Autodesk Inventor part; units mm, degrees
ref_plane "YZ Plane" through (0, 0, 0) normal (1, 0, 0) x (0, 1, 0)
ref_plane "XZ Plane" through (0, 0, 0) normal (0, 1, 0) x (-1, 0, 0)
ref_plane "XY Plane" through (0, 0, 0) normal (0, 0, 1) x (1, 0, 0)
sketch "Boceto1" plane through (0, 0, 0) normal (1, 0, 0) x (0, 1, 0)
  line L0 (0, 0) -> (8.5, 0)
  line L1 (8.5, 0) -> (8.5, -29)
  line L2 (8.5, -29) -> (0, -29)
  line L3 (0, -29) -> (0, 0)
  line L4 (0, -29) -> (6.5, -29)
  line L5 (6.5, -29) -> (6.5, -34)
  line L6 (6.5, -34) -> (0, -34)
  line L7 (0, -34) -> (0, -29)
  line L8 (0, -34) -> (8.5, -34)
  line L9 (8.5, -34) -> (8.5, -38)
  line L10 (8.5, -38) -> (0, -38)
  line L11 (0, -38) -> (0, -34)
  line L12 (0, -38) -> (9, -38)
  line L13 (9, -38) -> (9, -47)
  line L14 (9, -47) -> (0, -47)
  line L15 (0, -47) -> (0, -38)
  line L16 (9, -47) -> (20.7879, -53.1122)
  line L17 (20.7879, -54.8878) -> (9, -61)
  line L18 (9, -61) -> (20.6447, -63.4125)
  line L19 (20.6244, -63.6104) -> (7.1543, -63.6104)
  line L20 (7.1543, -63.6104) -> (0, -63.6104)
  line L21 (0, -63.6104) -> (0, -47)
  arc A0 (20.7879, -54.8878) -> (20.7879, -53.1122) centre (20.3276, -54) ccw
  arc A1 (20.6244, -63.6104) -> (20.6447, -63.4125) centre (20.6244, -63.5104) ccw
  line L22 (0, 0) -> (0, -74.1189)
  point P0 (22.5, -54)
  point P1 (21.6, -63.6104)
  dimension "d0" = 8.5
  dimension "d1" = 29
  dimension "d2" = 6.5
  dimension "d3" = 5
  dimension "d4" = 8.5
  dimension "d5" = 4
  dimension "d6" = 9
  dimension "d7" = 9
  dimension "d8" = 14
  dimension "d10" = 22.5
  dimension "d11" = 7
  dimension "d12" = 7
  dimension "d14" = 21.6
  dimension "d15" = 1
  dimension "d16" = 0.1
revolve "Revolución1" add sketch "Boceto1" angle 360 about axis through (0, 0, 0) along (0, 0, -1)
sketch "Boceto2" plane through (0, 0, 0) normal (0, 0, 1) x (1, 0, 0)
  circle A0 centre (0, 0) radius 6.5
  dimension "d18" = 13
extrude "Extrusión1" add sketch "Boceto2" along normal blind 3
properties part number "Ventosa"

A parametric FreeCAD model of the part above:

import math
import FreeCAD as App
import Part
import Sketcher
from FreeCAD import Vector
Q = App.Units.Quantity

doc = App.newDocument("Part")
body = doc.addObject("PartDesign::Body", "Body")

sketch1 = body.newObject("Sketcher::SketchObject", "Sketch")
sketch1.AttachmentSupport = (doc.getObject("YZ_Plane"), [""])
sketch1.MapMode = "FlatFace"
sketch1.addGeometry([
    Part.LineSegment(Vector(8.5, 0, 0), Vector(0, 0, 0)),
    Part.LineSegment(Vector(0, 0, 0), Vector(0, -63.61, 0)),
    Part.LineSegment(Vector(0, -63.61, 0), Vector(20.62, -63.61, 0)),
    Part.ArcOfCircle(Part.Circle(Vector(20.62, -63.51, 0), Vector(0, 0, 1), 0.1), math.radians(-90), math.radians(78)),
    Part.LineSegment(Vector(20.64, -63.41, 0), Vector(9, -61, 0)),
    Part.LineSegment(Vector(9, -61, 0), Vector(20.79, -54.89, 0)),
    Part.ArcOfCircle(Part.Circle(Vector(20.33, -54, 0), Vector(0, 0, 1), 1), math.radians(-63), math.radians(63)),
    Part.LineSegment(Vector(20.79, -53.11, 0), Vector(9, -47, 0)),
    Part.LineSegment(Vector(9, -47, 0), Vector(9, -38, 0)),
    Part.LineSegment(Vector(9, -38, 0), Vector(8.5, -38, 0)),
    Part.LineSegment(Vector(8.5, -38, 0), Vector(8.5, -34, 0)),
    Part.LineSegment(Vector(8.5, -34, 0), Vector(6.5, -34, 0)),
    Part.LineSegment(Vector(6.5, -34, 0), Vector(6.5, -29, 0)),
    Part.LineSegment(Vector(6.5, -29, 0), Vector(8.5, -29, 0)),
    Part.LineSegment(Vector(8.5, -29, 0), Vector(8.5, 0, 0)),
], False)
sketch1.addConstraint([
    Sketcher.Constraint("Coincident", 0, 2, 1, 1),
    Sketcher.Constraint("Coincident", 1, 2, 2, 1),
    Sketcher.Constraint("Tangent", 2, 2, 3, 1),
    Sketcher.Constraint("Tangent", 3, 2, 4, 1),
    Sketcher.Constraint("Coincident", 4, 2, 5, 1),
    Sketcher.Constraint("Tangent", 5, 2, 6, 1),
    Sketcher.Constraint("Tangent", 6, 2, 7, 1),
    Sketcher.Constraint("Coincident", 7, 2, 8, 1),
    Sketcher.Constraint("Coincident", 8, 2, 9, 1),
    Sketcher.Constraint("Coincident", 9, 2, 10, 1),
    Sketcher.Constraint("Coincident", 10, 2, 11, 1),
    Sketcher.Constraint("Coincident", 11, 2, 12, 1),
    Sketcher.Constraint("Coincident", 12, 2, 13, 1),
    Sketcher.Constraint("Coincident", 13, 2, 14, 1),
    Sketcher.Constraint("Coincident", 14, 2, 0, 1),
    Sketcher.Constraint("Horizontal", 0),
    Sketcher.Constraint("Vertical", 1),
    Sketcher.Constraint("Horizontal", 2),
    Sketcher.Constraint("Vertical", 8),
    Sketcher.Constraint("Horizontal", 9),
    Sketcher.Constraint("Vertical", 10),
    Sketcher.Constraint("Horizontal", 11),
    Sketcher.Constraint("Vertical", 12),
    Sketcher.Constraint("Horizontal", 13),
    Sketcher.Constraint("Vertical", 14),
    Sketcher.Constraint("Coincident", 0, 2, -1, 1),
    Sketcher.Constraint("Vertical", 5, 2, 6, 2),
    Sketcher.Constraint("Vertical", 4, 2, 7, 2),
    Sketcher.Constraint("Vertical", 10, 2, 13, 2),
    Sketcher.Constraint("Radius", 6, Q("1 mm")),
    Sketcher.Constraint("Radius", 3, Q("0.1 mm")),
    Sketcher.Constraint("DistanceY", 8, 1, 8, 2, Q("9 mm")),
    Sketcher.Constraint("DistanceY", 10, 1, 10, 2, Q("4 mm")),
    Sketcher.Constraint("DistanceY", 12, 1, 12, 2, Q("5 mm")),
    Sketcher.Constraint("DistanceY", 14, 1, 14, 2, Q("29 mm")),
    Sketcher.Constraint("DistanceX", 0, 2, 0, 1, Q("8.5 mm")),
    Sketcher.Constraint("DistanceX", -1, 1, 4, 2, Q("9 mm")),
    Sketcher.Constraint("DistanceY", 4, 2, 6, 3, Q("7 mm")),
    Sketcher.Constraint("DistanceX", -1, 1, 11, 2, Q("6.5 mm")),
    Sketcher.Constraint("Distance", 4, Q("11.892 mm")),
    Sketcher.Constraint("DistanceX", 2, 1, 2, 2, Q("20.6244 mm")),
    Sketcher.Constraint("DistanceX", -1, 1, 5, 2, Q("20.788 mm")),
])
revolution = body.newObject("PartDesign::Revolution", "Revolution")
revolution.Profile = sketch1
revolution.ReferenceAxis = (sketch1, ["V_Axis"])
revolution.Angle = 360

sketch2 = body.newObject("Sketcher::SketchObject", "Sketch001")
sketch2.AttachmentSupport = (doc.getObject("XY_Plane"), [""])
sketch2.MapMode = "FlatFace"
sketch2.addGeometry(Part.Circle(Vector(0, 0, 0), Vector(0, 0, 1), 6), False)
sketch2.addConstraint([
    Sketcher.Constraint("Coincident", 0, 3, -1, 1),
    Sketcher.Constraint("Diameter", 0, Q("13 mm")),
])
pad1 = body.newObject("PartDesign::Pad", "Pad")
pad1.Profile = sketch2
pad1.Length = 3

doc.recompute()
